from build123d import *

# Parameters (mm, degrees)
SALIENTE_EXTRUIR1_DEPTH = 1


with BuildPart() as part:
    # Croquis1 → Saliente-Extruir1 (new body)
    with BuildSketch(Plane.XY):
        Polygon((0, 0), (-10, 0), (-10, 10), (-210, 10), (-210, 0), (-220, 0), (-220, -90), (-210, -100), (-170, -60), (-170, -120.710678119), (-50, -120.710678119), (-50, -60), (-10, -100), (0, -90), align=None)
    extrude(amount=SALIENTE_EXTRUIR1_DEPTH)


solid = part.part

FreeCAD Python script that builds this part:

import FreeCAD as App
import Part
import Sketcher

V = App.Vector
Q = App.Units.Quantity

doc = App.newDocument("Part")
body = doc.addObject("PartDesign::Body", "Body")

# Sketch on XY plane
sketch1 = body.newObject("Sketcher::SketchObject", "Sketch")
sketch1.AttachmentSupport = (doc.getObject("XY_Plane"), [""])
sketch1.MapMode = "FlatFace"
sketch1.addGeometry(Part.LineSegment(V(0, 0, 0), V(-10, 0, 0)), False)
sketch1.addGeometry(Part.LineSegment(V(-10, 0, 0), V(-10, 10, 0)), False)
sketch1.addGeometry(Part.LineSegment(V(-10, 10, 0), V(-210, 10, 0)), False)
sketch1.addGeometry(Part.LineSegment(V(-210, 10, 0), V(-210, 0, 0)), False)
sketch1.addGeometry(Part.LineSegment(V(-210, 0, 0), V(-220, 0, 0)), False)
sketch1.addGeometry(Part.LineSegment(V(-220, 0, 0), V(-220, -90, 0)), False)
sketch1.addGeometry(Part.LineSegment(V(-220, -90, 0), V(-210, -100, 0)), False)
sketch1.addGeometry(Part.LineSegment(V(-210, -100, 0), V(-170, -60, 0)), False)
sketch1.addGeometry(Part.LineSegment(V(-170, -60, 0), V(-170, -121, 0)), False)
sketch1.addGeometry(Part.LineSegment(V(-170, -121, 0), V(-50, -121, 0)), False)
sketch1.addGeometry(Part.LineSegment(V(-50, -121, 0), V(-50, -60, 0)), False)
sketch1.addGeometry(Part.LineSegment(V(-50, -60, 0), V(-10, -100, 0)), False)
sketch1.addGeometry(Part.LineSegment(V(-10, -100, 0), V(0, -90, 0)), False)
sketch1.addGeometry(Part.LineSegment(V(0, -90, 0), V(0, 0, 0)), False)
sketch1.addConstraint(Sketcher.Constraint("Coincident", 0, 2, 1, 1))
sketch1.addConstraint(Sketcher.Constraint("Coincident", 1, 2, 2, 1))
sketch1.addConstraint(Sketcher.Constraint("Coincident", 2, 2, 3, 1))
sketch1.addConstraint(Sketcher.Constraint("Coincident", 3, 2, 4, 1))
sketch1.addConstraint(Sketcher.Constraint("Coincident", 4, 2, 5, 1))
sketch1.addConstraint(Sketcher.Constraint("Coincident", 5, 2, 6, 1))
sketch1.addConstraint(Sketcher.Constraint("Coincident", 6, 2, 7, 1))
sketch1.addConstraint(Sketcher.Constraint("Coincident", 7, 2, 8, 1))
sketch1.addConstraint(Sketcher.Constraint("Coincident", 8, 2, 9, 1))
sketch1.addConstraint(Sketcher.Constraint("Coincident", 9, 2, 10, 1))
sketch1.addConstraint(Sketcher.Constraint("Coincident", 10, 2, 11, 1))
sketch1.addConstraint(Sketcher.Constraint("Coincident", 11, 2, 12, 1))
sketch1.addConstraint(Sketcher.Constraint("Coincident", 12, 2, 13, 1))
sketch1.addConstraint(Sketcher.Constraint("Coincident", 13, 2, 0, 1))
sketch1.addConstraint(Sketcher.Constraint("Horizontal", 0))
sketch1.addConstraint(Sketcher.Constraint("Vertical", 1))
sketch1.addConstraint(Sketcher.Constraint("Horizontal", 2))
sketch1.addConstraint(Sketcher.Constraint("Vertical", 3))
sketch1.addConstraint(Sketcher.Constraint("Horizontal", 4))
sketch1.addConstraint(Sketcher.Constraint("Vertical", 5))
sketch1.addConstraint(Sketcher.Constraint("Vertical", 8))
sketch1.addConstraint(Sketcher.Constraint("Horizontal", 9))
sketch1.addConstraint(Sketcher.Constraint("Vertical", 10))
sketch1.addConstraint(Sketcher.Constraint("Vertical", 13))
sketch1.addConstraint(Sketcher.Constraint("Coincident", 13, 2, -1, 1))
sketch1.addConstraint(Sketcher.Constraint("PointOnObject", 3, 2, -1))
sketch1.addConstraint(Sketcher.Constraint("Perpendicular", 6, 7))
sketch1.addConstraint(Sketcher.Constraint("Perpendicular", 7, 11))
sketch1.addConstraint(Sketcher.Constraint("Perpendicular", 11, 12))
sketch1.addConstraint(Sketcher.Constraint("Horizontal", 7, 2, 10, 2))
sketch1.addConstraint(Sketcher.Constraint("Horizontal", 6, 2, 11, 2))
sketch1.addConstraint(Sketcher.Constraint("Horizontal", 5, 2, 12, 2))
sketch1.addConstraint(Sketcher.Constraint("Vertical", 3, 2, 6, 2))
sketch1.addConstraint(Sketcher.Constraint("Vertical", 1, 2, 11, 2))
sketch1.addConstraint(Sketcher.Constraint("Equal", 0, 4))
sketch1.addConstraint(Sketcher.Constraint("Equal", 4, 1))
sketch1.addConstraint(Sketcher.Constraint("DistanceX", 0, 2, 0, 1, Q("10 mm")))
sketch1.addConstraint(Sketcher.Constraint("DistanceX", 2, 2, 2, 1, Q("200 mm")))
sketch1.addConstraint(Sketcher.Constraint("DistanceX", 9, 1, 9, 2, Q("120 mm")))
sketch1.addConstraint(Sketcher.Constraint("DistanceY", 5, 2, 5, 1, Q("90 mm")))
sketch1.addConstraint(Sketcher.Constraint("DistanceY", 8, 2, 8, 1, Q("60.710678 mm")))
pad1 = body.newObject("PartDesign::Pad", "Pad")
pad1.Profile = sketch1
pad1.Length = 1

doc.recompute()
